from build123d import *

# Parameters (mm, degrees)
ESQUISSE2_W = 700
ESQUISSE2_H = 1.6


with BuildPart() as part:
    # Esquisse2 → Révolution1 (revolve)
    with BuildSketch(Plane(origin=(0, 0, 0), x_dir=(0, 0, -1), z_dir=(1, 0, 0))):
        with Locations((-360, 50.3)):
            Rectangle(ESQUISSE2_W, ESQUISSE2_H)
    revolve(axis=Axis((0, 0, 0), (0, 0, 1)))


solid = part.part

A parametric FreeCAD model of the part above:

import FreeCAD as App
import Part
import Sketcher
from FreeCAD import Vector

doc = App.newDocument("Part")
params = doc.addObject("Spreadsheet::Sheet", "Params")
for row, (alias, value) in enumerate([
    ("sketch1_height", "700 mm"),
    ("sketch1_width", "1.6 mm"),
    ("revolution_angle", "360 deg"),
], start=1):
    params.set(f"A{row}", alias)
    params.set(f"B{row}", "=" + value)
    params.setAlias(f"B{row}", alias)

body = doc.addObject("PartDesign::Body", "Body")

# Sketch on YZ plane
sketch1 = doc.addObject("Sketcher::SketchObject", "Sketch")
body.addObject(sketch1)
sketch1.AttachmentSupport = (doc.YZ_Plane, [""])
sketch1.MapMode = "FlatFace"
sketch1.addGeometry(Part.LineSegment(Vector(51.1, 710, 0), Vector(49.5, 710, 0)), False)
sketch1.addGeometry(Part.LineSegment(Vector(49.5, 710, 0), Vector(49.5, 10, 0)), False)
sketch1.addGeometry(Part.LineSegment(Vector(49.5, 10, 0), Vector(51.1, 10, 0)), False)
sketch1.addGeometry(Part.LineSegment(Vector(51.1, 10, 0), Vector(51.1, 710, 0)), False)
sketch1.addConstraint(Sketcher.Constraint("Coincident", 0, 2, 1, 1))
sketch1.addConstraint(Sketcher.Constraint("Coincident", 1, 2, 2, 1))
sketch1.addConstraint(Sketcher.Constraint("Coincident", 2, 2, 3, 1))
sketch1.addConstraint(Sketcher.Constraint("Coincident", 3, 2, 0, 1))
sketch1.addConstraint(Sketcher.Constraint("Horizontal", 0))
sketch1.addConstraint(Sketcher.Constraint("Vertical", 1))
sketch1.addConstraint(Sketcher.Constraint("Horizontal", 2))
sketch1.addConstraint(Sketcher.Constraint("Vertical", 3))
sketch1.addConstraint(Sketcher.Constraint("DistanceY", 1, 2, 1, 1, 700.0))
sketch1.addConstraint(Sketcher.Constraint("DistanceX", 0, 2, 0, 1, 1.6))
sketch1.addConstraint(Sketcher.Constraint("DistanceY", -1, 1, 0, 2, 710.0))
sketch1.addConstraint(Sketcher.Constraint("DistanceX", -1, 1, 0, 2, 49.5))
sketch1.setExpression("Constraints[8]", "Params.sketch1_height")
sketch1.setExpression("Constraints[9]", "Params.sketch1_width")
revolution = doc.addObject("PartDesign::Revolution", "Revolution")
body.addObject(revolution)
revolution.Profile = sketch1
revolution.ReferenceAxis = (sketch1, ["V_Axis"])
revolution.setExpression("Angle", "Params.revolution_angle")

doc.recompute()
